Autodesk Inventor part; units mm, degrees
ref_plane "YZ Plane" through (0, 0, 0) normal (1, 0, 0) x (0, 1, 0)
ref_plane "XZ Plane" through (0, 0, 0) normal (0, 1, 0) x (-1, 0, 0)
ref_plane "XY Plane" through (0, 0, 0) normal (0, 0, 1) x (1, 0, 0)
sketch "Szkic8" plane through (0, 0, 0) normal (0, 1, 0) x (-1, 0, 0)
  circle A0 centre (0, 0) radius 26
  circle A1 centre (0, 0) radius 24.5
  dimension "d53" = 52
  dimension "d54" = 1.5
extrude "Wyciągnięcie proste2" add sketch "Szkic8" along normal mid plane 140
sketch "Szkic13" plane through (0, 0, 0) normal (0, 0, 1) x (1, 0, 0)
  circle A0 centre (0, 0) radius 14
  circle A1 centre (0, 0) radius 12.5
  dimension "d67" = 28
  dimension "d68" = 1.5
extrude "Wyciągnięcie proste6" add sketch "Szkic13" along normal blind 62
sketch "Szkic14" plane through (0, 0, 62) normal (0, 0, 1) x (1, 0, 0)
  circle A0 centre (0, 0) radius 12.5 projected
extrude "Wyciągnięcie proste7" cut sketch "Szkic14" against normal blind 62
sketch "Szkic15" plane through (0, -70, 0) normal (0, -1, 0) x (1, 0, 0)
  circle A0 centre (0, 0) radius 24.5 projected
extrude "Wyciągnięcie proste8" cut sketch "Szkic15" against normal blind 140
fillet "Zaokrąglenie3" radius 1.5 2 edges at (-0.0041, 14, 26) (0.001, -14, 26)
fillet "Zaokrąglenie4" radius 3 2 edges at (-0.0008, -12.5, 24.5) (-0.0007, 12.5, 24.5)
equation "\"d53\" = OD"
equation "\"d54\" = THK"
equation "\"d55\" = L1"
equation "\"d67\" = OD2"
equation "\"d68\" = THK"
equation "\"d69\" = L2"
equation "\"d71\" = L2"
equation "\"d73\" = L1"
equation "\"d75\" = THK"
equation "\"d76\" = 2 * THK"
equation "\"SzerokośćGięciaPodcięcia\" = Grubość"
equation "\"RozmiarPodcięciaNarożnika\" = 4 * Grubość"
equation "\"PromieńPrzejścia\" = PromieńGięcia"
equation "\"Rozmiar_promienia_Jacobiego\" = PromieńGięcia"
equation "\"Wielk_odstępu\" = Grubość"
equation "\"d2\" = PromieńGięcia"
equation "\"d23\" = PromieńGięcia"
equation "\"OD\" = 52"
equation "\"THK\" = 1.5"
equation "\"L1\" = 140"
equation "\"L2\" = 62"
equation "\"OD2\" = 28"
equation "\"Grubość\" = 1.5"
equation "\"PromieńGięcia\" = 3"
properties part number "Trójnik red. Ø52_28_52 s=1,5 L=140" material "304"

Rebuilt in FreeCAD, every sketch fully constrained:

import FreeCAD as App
import Part
import Sketcher


def edges_at(feature, points):
    """Names of the edges that pass closest to the given points."""
    edges = feature.Shape.Edges
    near = lambda p: min(range(len(edges)), key=lambda i: edges[i].distToShape(Part.Vertex(*p))[0])
    return sorted({f"Edge{near(p) + 1}" for p in points})

doc = App.newDocument("Part")
body = doc.addObject("PartDesign::Body", "Body")

# Sketch on XZ plane
sketch1 = doc.addObject("Sketcher::SketchObject", "Sketch")
body.addObject(sketch1)
sketch1.AttachmentSupport = (doc.XZ_Plane, [""])
sketch1.MapMode = "FlatFace"
sketch1.addGeometry([
    Part.Circle(App.Vector(0, 0, 0), App.Vector(0, 0, 1), 26),
    Part.Circle(App.Vector(0, 0, 0), App.Vector(0, 0, 1), 24),
], False)
sketch1.addConstraint([
    Sketcher.Constraint("Coincident", 0, 3, -1, 1),
    Sketcher.Constraint("Coincident", 1, 3, -1, 1),
    Sketcher.Constraint("Diameter", 0, 52.0),
    Sketcher.Constraint("Diameter", 1, 49.0),
])
pad1 = doc.addObject("PartDesign::Pad", "Pad")
body.addObject(pad1)
pad1.Profile = sketch1
pad1.Length = 140
pad1.Midplane = True

# Sketch on XY plane
sketch2 = doc.addObject("Sketcher::SketchObject", "Sketch001")
body.addObject(sketch2)
sketch2.AttachmentSupport = (doc.XY_Plane, [""])
sketch2.MapMode = "FlatFace"
sketch2.addGeometry([
    Part.Circle(App.Vector(0, 0, 0), App.Vector(0, 0, 1), 14),
    Part.Circle(App.Vector(0, 0, 0), App.Vector(0, 0, 1), 12),
], False)
sketch2.addConstraint([
    Sketcher.Constraint("Coincident", 0, 3, -1, 1),
    Sketcher.Constraint("Coincident", 1, 3, -1, 1),
    Sketcher.Constraint("Diameter", 0, 28.0),
    Sketcher.Constraint("Diameter", 1, 25.0),
])
pad2 = doc.addObject("PartDesign::Pad", "Pad001")
body.addObject(pad2)
pad2.Profile = sketch2
pad2.Length = 62

# Sketch on XY plane
sketch3 = doc.addObject("Sketcher::SketchObject", "Sketch002")
body.addObject(sketch3)
sketch3.AttachmentSupport = (doc.XY_Plane, [""])
sketch3.MapMode = "FlatFace"
sketch3.AttachmentOffset = App.Placement(App.Vector(0, 0, 62), App.Rotation())
sketch3.addGeometry(Part.Circle(App.Vector(0, 0, 0), App.Vector(0, 0, 1), 12), False)
sketch3.addConstraint([
    Sketcher.Constraint("Coincident", 0, 3, -1, 1),
    Sketcher.Constraint("Diameter", 0, 25.0),
])
pocket1 = doc.addObject("PartDesign::Pocket", "Pocket")
body.addObject(pocket1)
pocket1.Profile = sketch3
pocket1.Length = 62

# Sketch on XZ plane
sketch4 = doc.addObject("Sketcher::SketchObject", "Sketch003")
body.addObject(sketch4)
sketch4.AttachmentSupport = (doc.XZ_Plane, [""])
sketch4.MapMode = "FlatFace"
sketch4.AttachmentOffset = App.Placement(App.Vector(0, 0, 70), App.Rotation())
sketch4.addGeometry(Part.Circle(App.Vector(0, 0, 0), App.Vector(0, 0, 1), 24), False)
sketch4.addConstraint([
    Sketcher.Constraint("Coincident", 0, 3, -1, 1),
    Sketcher.Constraint("Diameter", 0, 49.0),
])
pocket2 = doc.addObject("PartDesign::Pocket", "Pocket001")
body.addObject(pocket2)
pocket2.Profile = sketch4
pocket2.Length = 140
doc.recompute()

fillet = doc.addObject("PartDesign::Fillet", "Fillet")
body.addObject(fillet)
fillet.Base = (pocket2, edges_at(pocket2, [(-0.004, 14, 26), (0.001, -14, 26)]))
fillet.Radius = 1.5
doc.recompute()

fillet2 = doc.addObject("PartDesign::Fillet", "Fillet001")
body.addObject(fillet2)
fillet2.Base = (fillet, edges_at(fillet, [(-0.001, -12.5, 24.5), (-0.001, 12.5, 24.5)]))
fillet2.Radius = 3

doc.recompute()
